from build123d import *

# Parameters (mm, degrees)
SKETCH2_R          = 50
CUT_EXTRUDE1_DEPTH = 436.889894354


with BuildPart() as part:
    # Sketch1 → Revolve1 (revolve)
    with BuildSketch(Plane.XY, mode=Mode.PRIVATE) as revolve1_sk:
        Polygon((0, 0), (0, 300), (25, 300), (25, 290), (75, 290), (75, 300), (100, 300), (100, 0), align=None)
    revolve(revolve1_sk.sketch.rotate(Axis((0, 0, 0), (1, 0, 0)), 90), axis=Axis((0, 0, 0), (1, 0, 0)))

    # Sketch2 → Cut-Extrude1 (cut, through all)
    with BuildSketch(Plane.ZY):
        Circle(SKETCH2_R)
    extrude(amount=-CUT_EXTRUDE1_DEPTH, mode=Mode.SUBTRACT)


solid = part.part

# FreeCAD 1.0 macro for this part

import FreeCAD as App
import Part
import Sketcher
Q = App.Units.Quantity

doc = App.newDocument("Part")
body = doc.addObject("PartDesign::Body", "Body")

sketch1 = body.newObject("Sketcher::SketchObject", "Sketch")
sketch1.AttachmentSupport = (doc.getObject("XY_Plane"), [""])
sketch1.MapMode = "FlatFace"
sketch1.addGeometry([
    Part.LineSegment(App.Vector(0, 300, 0), App.Vector(0, 0, 0)),
    Part.LineSegment(App.Vector(0, 0, 0), App.Vector(100, 0, 0)),
    Part.LineSegment(App.Vector(100, 0, 0), App.Vector(100, 300, 0)),
    Part.LineSegment(App.Vector(100, 300, 0), App.Vector(75, 300, 0)),
    Part.LineSegment(App.Vector(75, 300, 0), App.Vector(75, 290, 0)),
    Part.LineSegment(App.Vector(75, 290, 0), App.Vector(25, 290, 0)),
    Part.LineSegment(App.Vector(25, 290, 0), App.Vector(25, 300, 0)),
    Part.LineSegment(App.Vector(25, 300, 0), App.Vector(0, 300, 0)),
], False)
sketch1.addConstraint([
    Sketcher.Constraint("Coincident", 0, 2, 1, 1),
    Sketcher.Constraint("Coincident", 1, 2, 2, 1),
    Sketcher.Constraint("Coincident", 2, 2, 3, 1),
    Sketcher.Constraint("Coincident", 3, 2, 4, 1),
    Sketcher.Constraint("Coincident", 4, 2, 5, 1),
    Sketcher.Constraint("Coincident", 5, 2, 6, 1),
    Sketcher.Constraint("Coincident", 6, 2, 7, 1),
    Sketcher.Constraint("Coincident", 7, 2, 0, 1),
    Sketcher.Constraint("Vertical", 0),
    Sketcher.Constraint("Horizontal", 1),
    Sketcher.Constraint("Vertical", 2),
    Sketcher.Constraint("Horizontal", 3),
    Sketcher.Constraint("Vertical", 4),
    Sketcher.Constraint("Horizontal", 5),
    Sketcher.Constraint("Vertical", 6),
    Sketcher.Constraint("Horizontal", 7),
    Sketcher.Constraint("Coincident", 0, 2, -1, 1),
    Sketcher.Constraint("Horizontal", 3, 2, 6, 2),
    Sketcher.Constraint("Equal", 3, 7),
    Sketcher.Constraint("DistanceX", 1, 1, 1, 2, Q("100 mm")),
    Sketcher.Constraint("DistanceX", 3, 2, 3, 1, Q("25 mm")),
    Sketcher.Constraint("DistanceY", 0, 2, 0, 1, Q("300 mm")),
    Sketcher.Constraint("DistanceY", 4, 2, 4, 1, Q("10 mm")),
])
revolution = body.newObject("PartDesign::Revolution", "Revolution")
revolution.Profile = sketch1
revolution.ReferenceAxis = (sketch1, ["H_Axis"])
revolution.Angle = 360

sketch2 = body.newObject("Sketcher::SketchObject", "Sketch001")
sketch2.AttachmentSupport = (doc.getObject("YZ_Plane"), [""])
sketch2.MapMode = "FlatFace"
sketch2.addGeometry(Part.Circle(App.Vector(0, 0, 0), App.Vector(0, 0, 1), 50), False)
sketch2.addConstraint([
    Sketcher.Constraint("Coincident", 0, 3, -1, 1),
    Sketcher.Constraint("Diameter", 0, Q("100 mm")),
])
pocket1 = body.newObject("PartDesign::Pocket", "Pocket")
pocket1.Profile = sketch2
pocket1.Type = "ThroughAll"
pocket1.Reversed = True

doc.recompute()
